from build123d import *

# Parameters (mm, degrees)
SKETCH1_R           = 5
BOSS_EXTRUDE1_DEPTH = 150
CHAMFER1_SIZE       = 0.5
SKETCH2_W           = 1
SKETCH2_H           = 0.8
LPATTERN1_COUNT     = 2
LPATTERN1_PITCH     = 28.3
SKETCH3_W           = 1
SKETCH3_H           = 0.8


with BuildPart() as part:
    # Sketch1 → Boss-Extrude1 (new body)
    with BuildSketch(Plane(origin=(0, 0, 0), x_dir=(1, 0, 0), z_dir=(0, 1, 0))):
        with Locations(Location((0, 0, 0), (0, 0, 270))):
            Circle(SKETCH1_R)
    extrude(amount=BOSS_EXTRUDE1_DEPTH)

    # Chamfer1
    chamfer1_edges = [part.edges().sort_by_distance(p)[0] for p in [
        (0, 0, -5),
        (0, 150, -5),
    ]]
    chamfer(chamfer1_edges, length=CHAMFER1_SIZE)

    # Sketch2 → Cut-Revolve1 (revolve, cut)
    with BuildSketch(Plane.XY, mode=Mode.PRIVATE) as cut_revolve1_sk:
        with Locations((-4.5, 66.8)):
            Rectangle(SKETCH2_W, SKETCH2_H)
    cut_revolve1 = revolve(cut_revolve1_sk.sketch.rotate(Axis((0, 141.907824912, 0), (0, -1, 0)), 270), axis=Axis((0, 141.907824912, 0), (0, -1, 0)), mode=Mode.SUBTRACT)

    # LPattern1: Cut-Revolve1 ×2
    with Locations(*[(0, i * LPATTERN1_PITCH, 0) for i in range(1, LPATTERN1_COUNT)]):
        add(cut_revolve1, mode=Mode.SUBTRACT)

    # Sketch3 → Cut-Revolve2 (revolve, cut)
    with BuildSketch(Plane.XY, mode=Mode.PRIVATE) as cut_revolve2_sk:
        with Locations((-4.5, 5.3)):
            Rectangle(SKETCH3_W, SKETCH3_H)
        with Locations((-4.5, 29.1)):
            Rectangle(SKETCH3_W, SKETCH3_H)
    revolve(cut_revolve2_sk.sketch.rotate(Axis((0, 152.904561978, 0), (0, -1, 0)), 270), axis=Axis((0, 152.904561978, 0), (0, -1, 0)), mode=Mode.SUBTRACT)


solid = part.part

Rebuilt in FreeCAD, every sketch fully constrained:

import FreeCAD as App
import Part
import Sketcher

V = App.Vector


def edges_at(feature, points):
    """Names of the edges that pass closest to the given points."""
    edges = feature.Shape.Edges
    near = lambda p: min(range(len(edges)), key=lambda i: edges[i].distToShape(Part.Vertex(*p))[0])
    return sorted({f"Edge{near(p) + 1}" for p in points})

doc = App.newDocument("Part")
body = doc.addObject("PartDesign::Body", "Body")

# Sketch on XZ plane
sketch1 = body.newObject("Sketcher::SketchObject", "Sketch")
sketch1.AttachmentSupport = (doc.getObject("XZ_Plane"), [""])
sketch1.MapMode = "FlatFace"
sketch1.addGeometry(Part.Circle(V(0, 0, 0), V(0, 0, 1), 5), False)
sketch1.addConstraint(Sketcher.Constraint("Coincident", 0, 3, -1, 1))
sketch1.addConstraint(Sketcher.Constraint("Diameter", 0, 10.0))
pad1 = body.newObject("PartDesign::Pad", "Pad")
pad1.Profile = sketch1
pad1.Length = 150
pad1.Reversed = True
doc.recompute()

chamfer = body.newObject("PartDesign::Chamfer", "Chamfer")
chamfer.Base = (pad1, edges_at(pad1, [(0, 0, -5), (0, 150, -5)]))
chamfer.Size = 0.5

# Sketch on XY plane
sketch2 = body.newObject("Sketcher::SketchObject", "Sketch001")
sketch2.AttachmentSupport = (doc.getObject("XY_Plane"), [""])
sketch2.MapMode = "FlatFace"
sketch2.addGeometry(Part.LineSegment(V(-5, 67.2, 0), V(-5, 66.4, 0)), False)
sketch2.addGeometry(Part.LineSegment(V(-5, 66.4, 0), V(-4, 66.4, 0)), False)
sketch2.addGeometry(Part.LineSegment(V(-4, 66.4, 0), V(-4, 67.2, 0)), False)
sketch2.addGeometry(Part.LineSegment(V(-4, 67.2, 0), V(-5, 67.2, 0)), False)
sketch2.addConstraint(Sketcher.Constraint("Coincident", 0, 2, 1, 1))
sketch2.addConstraint(Sketcher.Constraint("Coincident", 1, 2, 2, 1))
sketch2.addConstraint(Sketcher.Constraint("Coincident", 2, 2, 3, 1))
sketch2.addConstraint(Sketcher.Constraint("Coincident", 3, 2, 0, 1))
sketch2.addConstraint(Sketcher.Constraint("Vertical", 0))
sketch2.addConstraint(Sketcher.Constraint("Horizontal", 1))
sketch2.addConstraint(Sketcher.Constraint("Vertical", 2))
sketch2.addConstraint(Sketcher.Constraint("Horizontal", 3))
sketch2.addConstraint(Sketcher.Constraint("DistanceX", 1, 1, 1, 2, 1.0))
sketch2.addConstraint(Sketcher.Constraint("DistanceY", 0, 2, 0, 1, 0.8))
sketch2.addConstraint(Sketcher.Constraint("DistanceX", 0, 2, -1, 1, 5.0))
sketch2.addConstraint(Sketcher.Constraint("DistanceY", -1, 1, 0, 2, 66.4))
groove = body.newObject("PartDesign::Groove", "Groove")
groove.Profile = sketch2
groove.ReferenceAxis = (sketch2, ["V_Axis"])
groove.Angle = 360
doc.recompute()

linearpattern = body.newObject("PartDesign::LinearPattern", "LinearPattern")
linearpattern.Originals = [groove]
linearpattern.Direction = (doc.getObject("Y_Axis"), [""])
linearpattern.Mode = "offset"
linearpattern.Offset = 28.3
linearpattern.Occurrences = 2
body.Tip = linearpattern

# Sketch on XY plane
sketch3 = body.newObject("Sketcher::SketchObject", "Sketch002")
sketch3.AttachmentSupport = (doc.getObject("XY_Plane"), [""])
sketch3.MapMode = "FlatFace"
sketch3.addGeometry(Part.LineSegment(V(-5, 5.7, 0), V(-5, 4.9, 0)), False)
sketch3.addGeometry(Part.LineSegment(V(-5, 4.9, 0), V(-4, 4.9, 0)), False)
sketch3.addGeometry(Part.LineSegment(V(-4, 4.9, 0), V(-4, 5.7, 0)), False)
sketch3.addGeometry(Part.LineSegment(V(-4, 5.7, 0), V(-5, 5.7, 0)), False)
sketch3.addGeometry(Part.LineSegment(V(-5, 29.5, 0), V(-5, 28.7, 0)), False)
sketch3.addGeometry(Part.LineSegment(V(-5, 28.7, 0), V(-4, 28.7, 0)), False)
sketch3.addGeometry(Part.LineSegment(V(-4, 28.7, 0), V(-4, 29.5, 0)), False)
sketch3.addGeometry(Part.LineSegment(V(-4, 29.5, 0), V(-5, 29.5, 0)), False)
sketch3.addConstraint(Sketcher.Constraint("Coincident", 0, 2, 1, 1))
sketch3.addConstraint(Sketcher.Constraint("Coincident", 1, 2, 2, 1))
sketch3.addConstraint(Sketcher.Constraint("Coincident", 2, 2, 3, 1))
sketch3.addConstraint(Sketcher.Constraint("Coincident", 3, 2, 0, 1))
sketch3.addConstraint(Sketcher.Constraint("Coincident", 4, 2, 5, 1))
sketch3.addConstraint(Sketcher.Constraint("Coincident", 5, 2, 6, 1))
sketch3.addConstraint(Sketcher.Constraint("Coincident", 6, 2, 7, 1))
sketch3.addConstraint(Sketcher.Constraint("Coincident", 7, 2, 4, 1))
sketch3.addConstraint(Sketcher.Constraint("Vertical", 0))
sketch3.addConstraint(Sketcher.Constraint("Horizontal", 1))
sketch3.addConstraint(Sketcher.Constraint("Vertical", 2))
sketch3.addConstraint(Sketcher.Constraint("Horizontal", 3))
sketch3.addConstraint(Sketcher.Constraint("Vertical", 4))
sketch3.addConstraint(Sketcher.Constraint("Horizontal", 5))
sketch3.addConstraint(Sketcher.Constraint("Vertical", 6))
sketch3.addConstraint(Sketcher.Constraint("Horizontal", 7))
sketch3.addConstraint(Sketcher.Constraint("Vertical", 3, 2, 4, 2))
sketch3.addConstraint(Sketcher.Constraint("Vertical", 2, 2, 5, 2))
sketch3.addConstraint(Sketcher.Constraint("Equal", 2, 4))
sketch3.addConstraint(Sketcher.Constraint("DistanceX", 1, 1, 1, 2, 1.0))
sketch3.addConstraint(Sketcher.Constraint("DistanceY", 0, 2, 0, 1, 0.8))
sketch3.addConstraint(Sketcher.Constraint("DistanceX", 0, 2, -1, 1, 5.0))
sketch3.addConstraint(Sketcher.Constraint("DistanceY", 3, 2, 4, 2, 23.0))
sketch3.addConstraint(Sketcher.Constraint("DistanceY", -1, 1, 0, 2, 4.9))
groove2 = body.newObject("PartDesign::Groove", "Groove001")
groove2.Profile = sketch3
groove2.ReferenceAxis = (sketch3, ["V_Axis"])
groove2.Angle = 360

doc.recompute()
